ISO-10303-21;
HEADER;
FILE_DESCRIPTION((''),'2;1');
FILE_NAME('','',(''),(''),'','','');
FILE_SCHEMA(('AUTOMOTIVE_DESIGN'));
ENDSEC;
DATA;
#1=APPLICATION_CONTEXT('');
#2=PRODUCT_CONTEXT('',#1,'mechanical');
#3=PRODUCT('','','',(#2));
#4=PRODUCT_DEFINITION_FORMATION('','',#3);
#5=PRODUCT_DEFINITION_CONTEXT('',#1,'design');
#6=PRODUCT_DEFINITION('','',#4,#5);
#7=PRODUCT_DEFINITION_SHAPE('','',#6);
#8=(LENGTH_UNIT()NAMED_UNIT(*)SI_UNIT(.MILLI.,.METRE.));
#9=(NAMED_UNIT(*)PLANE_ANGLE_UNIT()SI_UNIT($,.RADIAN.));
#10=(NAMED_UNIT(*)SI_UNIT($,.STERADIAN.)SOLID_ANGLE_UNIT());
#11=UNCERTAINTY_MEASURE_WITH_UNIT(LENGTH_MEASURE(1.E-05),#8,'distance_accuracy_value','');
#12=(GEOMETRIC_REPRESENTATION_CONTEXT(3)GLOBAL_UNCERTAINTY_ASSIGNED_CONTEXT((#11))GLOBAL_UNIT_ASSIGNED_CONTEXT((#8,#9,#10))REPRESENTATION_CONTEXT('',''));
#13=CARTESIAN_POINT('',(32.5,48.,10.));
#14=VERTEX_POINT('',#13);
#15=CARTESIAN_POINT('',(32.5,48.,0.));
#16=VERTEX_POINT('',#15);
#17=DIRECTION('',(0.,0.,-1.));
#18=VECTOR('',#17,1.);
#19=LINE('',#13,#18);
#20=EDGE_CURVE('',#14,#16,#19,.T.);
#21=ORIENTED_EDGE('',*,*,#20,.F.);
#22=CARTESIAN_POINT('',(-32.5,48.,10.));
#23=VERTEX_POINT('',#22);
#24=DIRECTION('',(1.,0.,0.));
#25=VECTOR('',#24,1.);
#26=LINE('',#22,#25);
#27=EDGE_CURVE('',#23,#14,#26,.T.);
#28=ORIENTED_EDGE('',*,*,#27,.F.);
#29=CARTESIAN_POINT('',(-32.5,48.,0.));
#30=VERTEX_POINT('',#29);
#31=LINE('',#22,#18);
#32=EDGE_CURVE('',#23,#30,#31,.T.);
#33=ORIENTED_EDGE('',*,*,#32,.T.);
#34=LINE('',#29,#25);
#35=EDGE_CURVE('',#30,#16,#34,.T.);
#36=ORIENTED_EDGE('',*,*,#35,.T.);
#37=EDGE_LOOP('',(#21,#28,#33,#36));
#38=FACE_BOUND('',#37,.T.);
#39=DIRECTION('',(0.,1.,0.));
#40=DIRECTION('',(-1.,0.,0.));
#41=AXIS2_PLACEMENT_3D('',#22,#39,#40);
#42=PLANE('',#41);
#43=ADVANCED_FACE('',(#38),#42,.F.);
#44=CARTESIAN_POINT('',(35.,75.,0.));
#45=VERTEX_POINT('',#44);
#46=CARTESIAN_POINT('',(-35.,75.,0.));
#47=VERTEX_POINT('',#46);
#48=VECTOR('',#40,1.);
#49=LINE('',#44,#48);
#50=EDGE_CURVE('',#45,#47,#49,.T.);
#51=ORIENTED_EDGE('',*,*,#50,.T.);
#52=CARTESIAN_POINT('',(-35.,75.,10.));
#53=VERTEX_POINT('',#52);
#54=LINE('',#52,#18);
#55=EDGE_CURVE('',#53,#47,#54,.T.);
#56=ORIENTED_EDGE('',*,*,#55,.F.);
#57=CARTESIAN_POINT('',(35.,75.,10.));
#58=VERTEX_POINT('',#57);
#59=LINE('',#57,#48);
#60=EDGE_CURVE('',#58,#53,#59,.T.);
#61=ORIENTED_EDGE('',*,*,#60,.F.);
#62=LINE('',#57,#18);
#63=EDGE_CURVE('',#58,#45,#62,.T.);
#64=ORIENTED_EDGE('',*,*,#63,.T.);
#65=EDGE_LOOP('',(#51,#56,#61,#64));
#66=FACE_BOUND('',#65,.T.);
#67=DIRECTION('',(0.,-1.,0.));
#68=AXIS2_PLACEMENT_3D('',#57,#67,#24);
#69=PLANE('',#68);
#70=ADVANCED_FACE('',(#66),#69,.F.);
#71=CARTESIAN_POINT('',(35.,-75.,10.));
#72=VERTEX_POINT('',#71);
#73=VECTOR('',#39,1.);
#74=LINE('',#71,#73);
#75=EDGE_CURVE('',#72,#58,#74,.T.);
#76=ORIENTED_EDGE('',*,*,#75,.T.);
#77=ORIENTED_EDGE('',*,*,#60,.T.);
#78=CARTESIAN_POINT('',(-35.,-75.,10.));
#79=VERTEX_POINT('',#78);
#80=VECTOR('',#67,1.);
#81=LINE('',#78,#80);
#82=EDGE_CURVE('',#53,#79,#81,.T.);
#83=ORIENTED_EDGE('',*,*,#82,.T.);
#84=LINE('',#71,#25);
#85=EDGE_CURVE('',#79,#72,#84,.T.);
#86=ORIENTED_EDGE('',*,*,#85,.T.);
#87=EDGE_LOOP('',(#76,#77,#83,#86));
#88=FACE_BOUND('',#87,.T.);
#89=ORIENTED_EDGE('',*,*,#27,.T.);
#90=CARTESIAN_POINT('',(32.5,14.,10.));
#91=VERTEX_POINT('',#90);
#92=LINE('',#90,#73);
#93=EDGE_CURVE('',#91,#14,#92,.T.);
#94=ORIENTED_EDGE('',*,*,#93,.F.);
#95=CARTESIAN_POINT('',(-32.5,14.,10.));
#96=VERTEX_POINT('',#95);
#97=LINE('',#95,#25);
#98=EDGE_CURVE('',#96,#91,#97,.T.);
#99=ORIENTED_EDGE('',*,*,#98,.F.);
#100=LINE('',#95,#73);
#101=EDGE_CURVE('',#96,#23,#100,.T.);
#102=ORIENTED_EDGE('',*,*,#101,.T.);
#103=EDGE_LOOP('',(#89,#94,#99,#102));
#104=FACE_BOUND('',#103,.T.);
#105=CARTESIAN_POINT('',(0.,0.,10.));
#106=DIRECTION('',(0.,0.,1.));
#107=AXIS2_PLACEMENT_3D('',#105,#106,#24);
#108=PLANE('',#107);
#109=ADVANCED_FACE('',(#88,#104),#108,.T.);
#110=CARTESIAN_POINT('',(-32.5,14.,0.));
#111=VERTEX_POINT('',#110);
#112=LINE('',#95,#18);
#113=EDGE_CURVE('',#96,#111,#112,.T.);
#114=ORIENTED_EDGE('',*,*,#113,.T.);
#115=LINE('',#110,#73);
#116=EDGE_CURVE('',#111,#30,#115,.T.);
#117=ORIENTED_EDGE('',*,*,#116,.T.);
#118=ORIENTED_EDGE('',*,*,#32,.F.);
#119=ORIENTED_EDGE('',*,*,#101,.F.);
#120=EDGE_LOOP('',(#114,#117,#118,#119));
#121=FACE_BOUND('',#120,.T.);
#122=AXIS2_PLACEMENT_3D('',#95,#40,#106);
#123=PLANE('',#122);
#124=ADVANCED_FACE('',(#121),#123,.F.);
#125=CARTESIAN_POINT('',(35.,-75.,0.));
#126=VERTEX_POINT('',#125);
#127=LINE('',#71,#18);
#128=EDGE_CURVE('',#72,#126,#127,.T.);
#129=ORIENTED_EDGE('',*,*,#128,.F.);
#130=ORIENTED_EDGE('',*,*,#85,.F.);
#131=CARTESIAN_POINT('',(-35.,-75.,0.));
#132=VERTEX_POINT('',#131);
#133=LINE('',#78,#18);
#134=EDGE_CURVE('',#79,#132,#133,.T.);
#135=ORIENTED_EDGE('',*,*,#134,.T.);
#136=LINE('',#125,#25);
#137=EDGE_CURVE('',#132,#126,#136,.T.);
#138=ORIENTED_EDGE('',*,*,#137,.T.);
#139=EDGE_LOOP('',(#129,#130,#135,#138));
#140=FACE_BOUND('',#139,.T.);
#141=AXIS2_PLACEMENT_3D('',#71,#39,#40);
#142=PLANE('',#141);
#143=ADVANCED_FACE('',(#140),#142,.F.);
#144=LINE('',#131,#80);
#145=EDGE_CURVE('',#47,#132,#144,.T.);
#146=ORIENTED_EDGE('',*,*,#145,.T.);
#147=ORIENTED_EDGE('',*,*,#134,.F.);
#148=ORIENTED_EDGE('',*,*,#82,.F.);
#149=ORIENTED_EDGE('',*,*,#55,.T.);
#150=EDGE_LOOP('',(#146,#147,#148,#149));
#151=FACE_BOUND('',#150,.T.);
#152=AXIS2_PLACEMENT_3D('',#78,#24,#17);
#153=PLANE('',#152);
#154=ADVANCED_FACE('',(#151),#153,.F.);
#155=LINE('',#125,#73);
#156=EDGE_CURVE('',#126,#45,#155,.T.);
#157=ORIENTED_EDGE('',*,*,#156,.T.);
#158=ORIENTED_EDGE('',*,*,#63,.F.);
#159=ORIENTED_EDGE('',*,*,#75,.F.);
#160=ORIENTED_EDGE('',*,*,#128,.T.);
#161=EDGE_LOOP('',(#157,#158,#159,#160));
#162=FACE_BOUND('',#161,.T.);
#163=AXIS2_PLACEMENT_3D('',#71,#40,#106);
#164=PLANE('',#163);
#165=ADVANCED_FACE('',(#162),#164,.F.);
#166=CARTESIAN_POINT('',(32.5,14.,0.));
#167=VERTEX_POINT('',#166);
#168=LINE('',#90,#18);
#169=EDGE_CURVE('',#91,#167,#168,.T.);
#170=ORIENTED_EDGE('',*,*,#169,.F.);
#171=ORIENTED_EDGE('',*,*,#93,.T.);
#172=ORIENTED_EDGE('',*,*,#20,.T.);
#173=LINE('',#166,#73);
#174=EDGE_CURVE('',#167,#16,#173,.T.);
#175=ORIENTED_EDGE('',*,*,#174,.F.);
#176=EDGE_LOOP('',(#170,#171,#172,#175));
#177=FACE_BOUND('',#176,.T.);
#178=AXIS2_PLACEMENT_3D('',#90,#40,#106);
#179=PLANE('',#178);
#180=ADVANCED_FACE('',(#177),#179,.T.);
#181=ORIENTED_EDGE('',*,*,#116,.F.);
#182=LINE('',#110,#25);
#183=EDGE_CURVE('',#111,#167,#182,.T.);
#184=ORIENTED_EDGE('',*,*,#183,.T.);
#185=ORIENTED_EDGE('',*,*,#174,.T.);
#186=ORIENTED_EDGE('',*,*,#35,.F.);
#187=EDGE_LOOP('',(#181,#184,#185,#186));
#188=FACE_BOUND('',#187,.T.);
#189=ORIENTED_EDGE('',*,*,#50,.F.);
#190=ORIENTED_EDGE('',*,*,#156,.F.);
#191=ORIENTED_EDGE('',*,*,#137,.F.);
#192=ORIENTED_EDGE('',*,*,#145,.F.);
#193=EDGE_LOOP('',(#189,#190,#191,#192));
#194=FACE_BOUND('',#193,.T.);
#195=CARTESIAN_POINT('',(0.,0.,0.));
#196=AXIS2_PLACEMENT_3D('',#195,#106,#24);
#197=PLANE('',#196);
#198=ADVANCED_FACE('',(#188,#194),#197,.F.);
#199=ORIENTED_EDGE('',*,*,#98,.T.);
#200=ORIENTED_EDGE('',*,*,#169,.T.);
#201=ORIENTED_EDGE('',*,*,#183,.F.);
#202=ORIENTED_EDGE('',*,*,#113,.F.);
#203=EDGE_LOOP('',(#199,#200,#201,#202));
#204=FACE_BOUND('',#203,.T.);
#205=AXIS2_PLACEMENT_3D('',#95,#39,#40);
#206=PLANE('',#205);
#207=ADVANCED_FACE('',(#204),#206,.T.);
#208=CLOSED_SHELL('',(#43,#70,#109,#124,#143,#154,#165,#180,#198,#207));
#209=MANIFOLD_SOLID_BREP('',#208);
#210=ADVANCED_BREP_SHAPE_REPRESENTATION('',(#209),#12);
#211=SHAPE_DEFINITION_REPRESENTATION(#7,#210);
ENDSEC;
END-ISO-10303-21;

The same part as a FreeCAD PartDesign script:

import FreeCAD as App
import Part
import Sketcher

V = App.Vector

doc = App.newDocument("Part")
body = doc.addObject("PartDesign::Body", "Body")

# Sketch on XY plane
sketch1 = body.newObject("Sketcher::SketchObject", "Sketch")
sketch1.AttachmentSupport = (doc.getObject("XY_Plane"), [""])
sketch1.MapMode = "FlatFace"
sketch1.addGeometry([
    Part.LineSegment(V(-35, 75, 0), V(-35, -75, 0)),
    Part.LineSegment(V(-35, -75, 0), V(35, -75, 0)),
    Part.LineSegment(V(35, -75, 0), V(35, 75, 0)),
    Part.LineSegment(V(35, 75, 0), V(-35, 75, 0)),
], False)
sketch1.addConstraint([
    Sketcher.Constraint("Coincident", 0, 2, 1, 1),
    Sketcher.Constraint("Coincident", 1, 2, 2, 1),
    Sketcher.Constraint("Coincident", 2, 2, 3, 1),
    Sketcher.Constraint("Coincident", 3, 2, 0, 1),
    Sketcher.Constraint("Vertical", 0),
    Sketcher.Constraint("Horizontal", 1),
    Sketcher.Constraint("Vertical", 2),
    Sketcher.Constraint("Horizontal", 3),
    Sketcher.Constraint("Symmetric", 0, 2, 2, 2, -1, 1),
    Sketcher.Constraint("DistanceX", 1, 1, 1, 2, 70.0),
    Sketcher.Constraint("DistanceY", 0, 2, 0, 1, 150.0),
])
pad1 = body.newObject("PartDesign::Pad", "Pad")
pad1.Profile = sketch1
pad1.Length = 10

# Sketch on XY plane
sketch2 = body.newObject("Sketcher::SketchObject", "Sketch001")
sketch2.AttachmentSupport = (doc.getObject("XY_Plane"), [""])
sketch2.MapMode = "FlatFace"
sketch2.addGeometry([
    Part.LineSegment(V(32.5, 48, 0), V(32.5, 14, 0)),
    Part.LineSegment(V(32.5, 14, 0), V(-32.5, 14, 0)),
    Part.LineSegment(V(-32.5, 14, 0), V(-32.5, 48, 0)),
    Part.LineSegment(V(-32.5, 48, 0), V(32.5, 48, 0)),
], False)
sketch2.addConstraint([
    Sketcher.Constraint("Coincident", 0, 2, 1, 1),
    Sketcher.Constraint("Coincident", 1, 2, 2, 1),
    Sketcher.Constraint("Coincident", 2, 2, 3, 1),
    Sketcher.Constraint("Coincident", 3, 2, 0, 1),
    Sketcher.Constraint("Vertical", 0),
    Sketcher.Constraint("Horizontal", 1),
    Sketcher.Constraint("Vertical", 2),
    Sketcher.Constraint("Horizontal", 3),
    Sketcher.Constraint("DistanceX", 1, 2, 1, 1, 65.0),
    Sketcher.Constraint("DistanceY", 0, 2, 0, 1, 34.0),
    Sketcher.Constraint("DistanceY", -1, 1, 0, 2, 14.0),
    Sketcher.Constraint("DistanceX", -1, 1, 0, 2, 32.5),
])
pocket1 = body.newObject("PartDesign::Pocket", "Pocket")
pocket1.Profile = sketch2
pocket1.Type = "ThroughAll"
pocket1.Reversed = True

doc.recompute()
